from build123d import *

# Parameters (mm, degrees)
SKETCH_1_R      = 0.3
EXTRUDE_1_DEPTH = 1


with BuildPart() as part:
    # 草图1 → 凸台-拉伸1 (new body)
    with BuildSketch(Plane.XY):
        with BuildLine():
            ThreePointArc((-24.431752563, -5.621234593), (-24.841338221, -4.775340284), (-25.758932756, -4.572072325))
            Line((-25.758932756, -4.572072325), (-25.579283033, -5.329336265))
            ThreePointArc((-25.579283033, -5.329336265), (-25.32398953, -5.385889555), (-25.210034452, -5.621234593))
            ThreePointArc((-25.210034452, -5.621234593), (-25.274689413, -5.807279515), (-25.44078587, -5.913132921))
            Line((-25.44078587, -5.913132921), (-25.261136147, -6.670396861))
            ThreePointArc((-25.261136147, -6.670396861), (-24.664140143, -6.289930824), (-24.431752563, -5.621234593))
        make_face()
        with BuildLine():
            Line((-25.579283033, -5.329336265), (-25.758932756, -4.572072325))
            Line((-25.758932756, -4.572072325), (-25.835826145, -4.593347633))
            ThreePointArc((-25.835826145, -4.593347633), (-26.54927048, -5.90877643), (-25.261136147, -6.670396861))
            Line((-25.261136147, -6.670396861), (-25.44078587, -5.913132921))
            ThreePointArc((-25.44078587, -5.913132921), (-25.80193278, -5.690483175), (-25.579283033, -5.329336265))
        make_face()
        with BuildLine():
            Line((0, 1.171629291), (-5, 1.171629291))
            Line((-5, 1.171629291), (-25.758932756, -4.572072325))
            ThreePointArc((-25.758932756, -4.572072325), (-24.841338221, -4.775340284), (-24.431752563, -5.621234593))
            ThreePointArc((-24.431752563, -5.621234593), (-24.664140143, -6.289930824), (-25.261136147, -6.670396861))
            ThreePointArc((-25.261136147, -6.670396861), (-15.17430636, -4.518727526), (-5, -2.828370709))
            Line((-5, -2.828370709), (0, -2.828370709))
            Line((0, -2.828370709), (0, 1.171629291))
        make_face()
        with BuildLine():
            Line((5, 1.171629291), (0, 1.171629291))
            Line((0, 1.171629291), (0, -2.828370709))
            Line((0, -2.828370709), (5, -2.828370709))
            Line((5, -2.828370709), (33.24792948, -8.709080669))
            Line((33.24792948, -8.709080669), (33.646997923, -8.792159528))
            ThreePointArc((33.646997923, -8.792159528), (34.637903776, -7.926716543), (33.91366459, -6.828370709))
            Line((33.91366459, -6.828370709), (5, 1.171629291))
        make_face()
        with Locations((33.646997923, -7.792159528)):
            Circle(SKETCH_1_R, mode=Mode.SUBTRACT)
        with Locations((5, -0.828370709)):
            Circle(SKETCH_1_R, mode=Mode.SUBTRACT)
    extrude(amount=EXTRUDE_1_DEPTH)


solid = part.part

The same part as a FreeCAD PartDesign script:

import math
import FreeCAD as App
import Part
import Sketcher
from FreeCAD import Vector

doc = App.newDocument("Part")
body = doc.addObject("PartDesign::Body", "Body")

sketch1 = doc.addObject("Sketcher::SketchObject", "Sketch")
body.addObject(sketch1)
sketch1.AttachmentSupport = (doc.XY_Plane, [""])
sketch1.MapMode = "FlatFace"
sketch1.addGeometry([
    Part.LineSegment(Vector(-25.758933, -4.572072, 0), Vector(-25.835826, -4.593348, 0)),
    Part.ArcOfCircle(Part.Circle(Vector(-25.510034, -5.621235, 0), Vector(0, 0, 1), 1.078282), math.radians(107.58616), math.radians(283.34586)),
    Part.ArcOfCircle(Part.Circle(Vector(27.033614, -227.104519, 0), Vector(0, 0, 1), 226.552296), math.radians(98.128641), math.radians(103.34586)),
    Part.LineSegment(Vector(-5, -2.828371, 0), Vector(5, -2.828371, 0)),
    Part.LineSegment(Vector(5, -2.828371, 0), Vector(33.247929, -8.709081, 0)),
    Part.LineSegment(Vector(33.247929, -8.709081, 0), Vector(33.646998, -8.79216, 0)),
    Part.ArcOfCircle(Part.Circle(Vector(33.646998, -7.79216, 0), Vector(0, 0, 1), 1), math.radians(-90), math.radians(74.53399)),
    Part.LineSegment(Vector(33.913665, -6.828371, 0), Vector(5, 1.171629, 0)),
    Part.LineSegment(Vector(5, 1.171629, 0), Vector(-5, 1.171629, 0)),
    Part.LineSegment(Vector(-5, 1.171629, 0), Vector(-25.758933, -4.572072, 0)),
    Part.ArcOfCircle(Part.Circle(Vector(-25.510034, -5.621235, 0), Vector(0, 0, 1), 0.3), math.radians(0), math.radians(103.34586)),
    Part.ArcOfCircle(Part.Circle(Vector(-25.510034, -5.621235, 0), Vector(0, 0, 1), 0.3), math.radians(-76.65414), math.radians(0)),
    Part.ArcOfCircle(Part.Circle(Vector(-25.510034, -5.621235, 0), Vector(0, 0, 1), 0.3), math.radians(103.34586), math.radians(283.34586)),
    Part.Circle(Vector(33.646998, -7.79216, 0), Vector(0, 0, 1), 0.3),
    Part.Circle(Vector(5, -0.828371, 0), Vector(0, 0, 1), 0.3),
], False)
sketch1.addConstraint([
    Sketcher.Constraint("Coincident", 0, 2, 1, 1),
    Sketcher.Constraint("Coincident", 1, 2, 2, 2),
    Sketcher.Constraint("Coincident", 2, 1, 3, 1),
    Sketcher.Constraint("Coincident", 3, 2, 4, 1),
    Sketcher.Constraint("Coincident", 4, 2, 5, 1),
    Sketcher.Constraint("Coincident", 5, 2, 6, 1),
    Sketcher.Constraint("Coincident", 6, 2, 7, 1),
    Sketcher.Constraint("Coincident", 7, 2, 8, 1),
    Sketcher.Constraint("Coincident", 8, 2, 9, 1),
    Sketcher.Constraint("Coincident", 9, 2, 0, 1),
    Sketcher.Constraint("Coincident", 10, 1, 11, 2),
    Sketcher.Constraint("Coincident", 11, 1, 12, 2),
    Sketcher.Constraint("Coincident", 12, 1, 10, 2),
    Sketcher.Constraint("Horizontal", 3),
    Sketcher.Constraint("Horizontal", 8),
    Sketcher.Constraint("Coincident", 10, 3, 1, 3),
    Sketcher.Constraint("Coincident", 11, 3, 1, 3),
    Sketcher.Constraint("Coincident", 13, 3, 6, 3),
    Sketcher.Constraint("Radius", 6, 1.0),
    Sketcher.Constraint("Diameter", 13, 0.6),
    Sketcher.Constraint("Diameter", 14, 0.6),
    Sketcher.Constraint("Radius", 10, 0.3),
    Sketcher.Constraint("DistanceX", 3, 1, 3, 2, 10.0),
    Sketcher.Constraint("DistanceX", 8, 2, 8, 1, 10.0),
    Sketcher.Constraint("Distance", 7, 30.0),
    Sketcher.Constraint("DistanceX", -1, 1, 14, 3, 5.0),
    Sketcher.Constraint("DistanceX", 2, 1, -1, 1, 5.0),
    Sketcher.Constraint("DistanceX", -1, 1, 7, 2, 5.0),
    Sketcher.Constraint("DistanceY", 2, 1, 14, 3, 2.0),
    Sketcher.Constraint("DistanceY", 6, 2, 3, 2, 4.0),
    Sketcher.Constraint("DistanceY", 14, 3, 7, 2, 2.0),
    Sketcher.Constraint("DistanceX", 12, 3, 10, 1, 0.3),
    Sketcher.Constraint("Radius", 1, 1.078282),
    Sketcher.Constraint("Radius", 2, 226.552296),
    Sketcher.Constraint("DistanceX", 11, 3, 1, 2, 0.248898),
    Sketcher.Constraint("DistanceX", 9, 2, 1, 3, 0.248898),
    Sketcher.Constraint("DistanceY", 11, 1, 11, 3, 0.291898),
    Sketcher.Constraint("DistanceY", 11, 1, 10, 1, 0.291898),
    Sketcher.Constraint("DistanceY", 1, 3, 12, 1, 0.291898),
    Sketcher.Constraint("Distance", 9, 21.538881),
    Sketcher.Constraint("DistanceY", 2, 3, -1, 1, 227.104519),
    Sketcher.Constraint("DistanceY", 6, 3, -1, 1, 7.79216),
    Sketcher.Constraint("DistanceY", 14, 3, -1, 1, 0.828371),
    Sketcher.Constraint("DistanceX", -1, 1, 4, 2, 33.247929),
    Sketcher.Constraint("DistanceY", 4, 2, -1, 1, 8.709081),
    Sketcher.Constraint("DistanceX", 1, 3, 2, 3, 52.543649),
    Sketcher.Constraint("DistanceX", 0, 2, 1, 3, 0.325792),
    Sketcher.Constraint("DistanceX", 4, 2, 5, 2, 0.399068),
])
pad1 = doc.addObject("PartDesign::Pad", "Pad")
body.addObject(pad1)
pad1.Profile = sketch1
pad1.Length = 1

doc.recompute()
